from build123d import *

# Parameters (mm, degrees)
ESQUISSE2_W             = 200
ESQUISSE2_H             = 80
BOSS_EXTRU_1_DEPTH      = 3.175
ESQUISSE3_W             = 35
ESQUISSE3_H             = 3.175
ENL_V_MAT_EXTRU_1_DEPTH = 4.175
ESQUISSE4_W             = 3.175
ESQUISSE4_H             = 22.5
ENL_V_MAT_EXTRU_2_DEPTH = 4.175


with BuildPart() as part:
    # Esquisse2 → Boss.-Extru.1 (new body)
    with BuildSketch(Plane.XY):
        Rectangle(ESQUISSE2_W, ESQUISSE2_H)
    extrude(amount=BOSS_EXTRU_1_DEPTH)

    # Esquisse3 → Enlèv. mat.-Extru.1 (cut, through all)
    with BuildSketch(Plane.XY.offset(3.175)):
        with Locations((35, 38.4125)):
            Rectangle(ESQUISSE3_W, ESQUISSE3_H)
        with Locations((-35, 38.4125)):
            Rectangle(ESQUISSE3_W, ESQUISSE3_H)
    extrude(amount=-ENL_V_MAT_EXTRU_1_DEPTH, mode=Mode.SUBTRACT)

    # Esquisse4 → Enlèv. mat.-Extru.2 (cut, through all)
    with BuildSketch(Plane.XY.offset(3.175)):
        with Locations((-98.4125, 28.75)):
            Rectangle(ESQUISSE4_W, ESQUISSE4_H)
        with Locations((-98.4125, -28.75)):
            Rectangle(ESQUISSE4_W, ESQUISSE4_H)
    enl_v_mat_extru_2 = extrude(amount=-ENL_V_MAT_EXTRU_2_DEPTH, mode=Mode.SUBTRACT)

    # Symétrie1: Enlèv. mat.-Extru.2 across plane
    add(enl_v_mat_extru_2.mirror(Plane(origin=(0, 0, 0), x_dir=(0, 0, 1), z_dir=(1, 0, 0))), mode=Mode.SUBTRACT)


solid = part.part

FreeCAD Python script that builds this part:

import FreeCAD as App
import Part
import Sketcher

V = App.Vector


def add_polygon(sketch, points):
    """Adds a closed chain of lines whose ends are joined by coincident constraints."""
    first, n = sketch.GeometryCount, len(points)
    for a, b in zip(points, points[1:] + points[:1]):
        sketch.addGeometry(Part.LineSegment(App.Vector(*a, 0), App.Vector(*b, 0)), False)
    for i in range(n):
        sketch.addConstraint(Sketcher.Constraint("Coincident", first + i, 2, first + (i + 1) % n, 1))

doc = App.newDocument("Part")
body = doc.addObject("PartDesign::Body", "Body")

# Sketch on XY plane
sketch1 = body.newObject("Sketcher::SketchObject", "Sketch")
sketch1.AttachmentSupport = (doc.getObject("XY_Plane"), [""])
sketch1.MapMode = "FlatFace"
add_polygon(sketch1, [(-100, 40), (-100, -40), (100, -40), (100, 40)])  # lines 0-3
sketch1.addConstraint([
    Sketcher.Constraint("Vertical", 0),
    Sketcher.Constraint("Horizontal", 1),
    Sketcher.Constraint("Vertical", 2),
    Sketcher.Constraint("Horizontal", 3),
    Sketcher.Constraint("Symmetric", 0, 2, 2, 2, -1, 1),
    Sketcher.Constraint("DistanceX", 1, 1, 1, 2, 200.0),
    Sketcher.Constraint("DistanceY", 0, 2, 0, 1, 80.0),
])
pad1 = body.newObject("PartDesign::Pad", "Pad")
pad1.Profile = sketch1
pad1.Length = 3.175

# Sketch on XY plane
sketch2 = body.newObject("Sketcher::SketchObject", "Sketch001")
sketch2.AttachmentSupport = (doc.getObject("XY_Plane"), [""])
sketch2.MapMode = "FlatFace"
sketch2.AttachmentOffset = App.Placement(V(0, 0, 3.175), App.Rotation())
add_polygon(sketch2, [(17.5, 40), (17.5, 36.8), (52.5, 36.8), (52.5, 40)])  # lines 0-3
add_polygon(sketch2, [(-52.5, 40), (-52.5, 36.8), (-17.5, 36.8), (-17.5, 40)])  # lines 4-7
sketch2.addConstraint([
    Sketcher.Constraint("Vertical", 0),
    Sketcher.Constraint("Horizontal", 1),
    Sketcher.Constraint("Vertical", 2),
    Sketcher.Constraint("Horizontal", 3),
    Sketcher.Constraint("Vertical", 4),
    Sketcher.Constraint("Horizontal", 5),
    Sketcher.Constraint("Vertical", 6),
    Sketcher.Constraint("Horizontal", 7),
    Sketcher.Constraint("Symmetric", 1, 2, 4, 2, -2),
    Sketcher.Constraint("Symmetric", 3, 2, 6, 2, -2),
    Sketcher.Constraint("DistanceX", 1, 1, 1, 2, 35.0),
    Sketcher.Constraint("DistanceY", -1, 1, 2, 2, 40.0),
    Sketcher.Constraint("DistanceX", 4, 2, 0, 2, 70.0),
    Sketcher.Constraint("DistanceY", 0, 2, 0, 1, 3.175),
])
pocket1 = body.newObject("PartDesign::Pocket", "Pocket")
pocket1.Profile = sketch2
pocket1.Type = "ThroughAll"

# Sketch on XY plane
sketch3 = body.newObject("Sketcher::SketchObject", "Sketch002")
sketch3.AttachmentSupport = (doc.getObject("XY_Plane"), [""])
sketch3.MapMode = "FlatFace"
sketch3.AttachmentOffset = App.Placement(V(0, 0, 3.175), App.Rotation())
add_polygon(sketch3, [(-100, 40), (-100, 17.5), (-96.8, 17.5), (-96.8, 40)])  # lines 0-3
add_polygon(sketch3, [(-100, -17.5), (-100, -40), (-96.8, -40), (-96.8, -17.5)])  # lines 4-7
sketch3.addConstraint([
    Sketcher.Constraint("Vertical", 0),
    Sketcher.Constraint("Horizontal", 1),
    Sketcher.Constraint("Vertical", 2),
    Sketcher.Constraint("Horizontal", 3),
    Sketcher.Constraint("Vertical", 4),
    Sketcher.Constraint("Horizontal", 5),
    Sketcher.Constraint("Vertical", 6),
    Sketcher.Constraint("Horizontal", 7),
    Sketcher.Constraint("Symmetric", 3, 2, 4, 2, -1),
    Sketcher.Constraint("Symmetric", 1, 2, 6, 2, -1),
    Sketcher.Constraint("DistanceY", 0, 2, 0, 1, 22.5),
    Sketcher.Constraint("DistanceX", 0, 2, -1, 1, 100.0),
    Sketcher.Constraint("DistanceY", -1, 1, 2, 2, 40.0),
    Sketcher.Constraint("DistanceX", 1, 1, 1, 2, 3.175),
])
pocket2 = body.newObject("PartDesign::Pocket", "Pocket001")
pocket2.Profile = sketch3
pocket2.Type = "ThroughAll"
doc.recompute()

mirrored = body.newObject("PartDesign::Mirrored", "Mirrored")
mirrored.Originals = [pocket2]
mirrored.MirrorPlane = (doc.getObject("YZ_Plane"), [""])
body.Tip = mirrored

doc.recompute()
